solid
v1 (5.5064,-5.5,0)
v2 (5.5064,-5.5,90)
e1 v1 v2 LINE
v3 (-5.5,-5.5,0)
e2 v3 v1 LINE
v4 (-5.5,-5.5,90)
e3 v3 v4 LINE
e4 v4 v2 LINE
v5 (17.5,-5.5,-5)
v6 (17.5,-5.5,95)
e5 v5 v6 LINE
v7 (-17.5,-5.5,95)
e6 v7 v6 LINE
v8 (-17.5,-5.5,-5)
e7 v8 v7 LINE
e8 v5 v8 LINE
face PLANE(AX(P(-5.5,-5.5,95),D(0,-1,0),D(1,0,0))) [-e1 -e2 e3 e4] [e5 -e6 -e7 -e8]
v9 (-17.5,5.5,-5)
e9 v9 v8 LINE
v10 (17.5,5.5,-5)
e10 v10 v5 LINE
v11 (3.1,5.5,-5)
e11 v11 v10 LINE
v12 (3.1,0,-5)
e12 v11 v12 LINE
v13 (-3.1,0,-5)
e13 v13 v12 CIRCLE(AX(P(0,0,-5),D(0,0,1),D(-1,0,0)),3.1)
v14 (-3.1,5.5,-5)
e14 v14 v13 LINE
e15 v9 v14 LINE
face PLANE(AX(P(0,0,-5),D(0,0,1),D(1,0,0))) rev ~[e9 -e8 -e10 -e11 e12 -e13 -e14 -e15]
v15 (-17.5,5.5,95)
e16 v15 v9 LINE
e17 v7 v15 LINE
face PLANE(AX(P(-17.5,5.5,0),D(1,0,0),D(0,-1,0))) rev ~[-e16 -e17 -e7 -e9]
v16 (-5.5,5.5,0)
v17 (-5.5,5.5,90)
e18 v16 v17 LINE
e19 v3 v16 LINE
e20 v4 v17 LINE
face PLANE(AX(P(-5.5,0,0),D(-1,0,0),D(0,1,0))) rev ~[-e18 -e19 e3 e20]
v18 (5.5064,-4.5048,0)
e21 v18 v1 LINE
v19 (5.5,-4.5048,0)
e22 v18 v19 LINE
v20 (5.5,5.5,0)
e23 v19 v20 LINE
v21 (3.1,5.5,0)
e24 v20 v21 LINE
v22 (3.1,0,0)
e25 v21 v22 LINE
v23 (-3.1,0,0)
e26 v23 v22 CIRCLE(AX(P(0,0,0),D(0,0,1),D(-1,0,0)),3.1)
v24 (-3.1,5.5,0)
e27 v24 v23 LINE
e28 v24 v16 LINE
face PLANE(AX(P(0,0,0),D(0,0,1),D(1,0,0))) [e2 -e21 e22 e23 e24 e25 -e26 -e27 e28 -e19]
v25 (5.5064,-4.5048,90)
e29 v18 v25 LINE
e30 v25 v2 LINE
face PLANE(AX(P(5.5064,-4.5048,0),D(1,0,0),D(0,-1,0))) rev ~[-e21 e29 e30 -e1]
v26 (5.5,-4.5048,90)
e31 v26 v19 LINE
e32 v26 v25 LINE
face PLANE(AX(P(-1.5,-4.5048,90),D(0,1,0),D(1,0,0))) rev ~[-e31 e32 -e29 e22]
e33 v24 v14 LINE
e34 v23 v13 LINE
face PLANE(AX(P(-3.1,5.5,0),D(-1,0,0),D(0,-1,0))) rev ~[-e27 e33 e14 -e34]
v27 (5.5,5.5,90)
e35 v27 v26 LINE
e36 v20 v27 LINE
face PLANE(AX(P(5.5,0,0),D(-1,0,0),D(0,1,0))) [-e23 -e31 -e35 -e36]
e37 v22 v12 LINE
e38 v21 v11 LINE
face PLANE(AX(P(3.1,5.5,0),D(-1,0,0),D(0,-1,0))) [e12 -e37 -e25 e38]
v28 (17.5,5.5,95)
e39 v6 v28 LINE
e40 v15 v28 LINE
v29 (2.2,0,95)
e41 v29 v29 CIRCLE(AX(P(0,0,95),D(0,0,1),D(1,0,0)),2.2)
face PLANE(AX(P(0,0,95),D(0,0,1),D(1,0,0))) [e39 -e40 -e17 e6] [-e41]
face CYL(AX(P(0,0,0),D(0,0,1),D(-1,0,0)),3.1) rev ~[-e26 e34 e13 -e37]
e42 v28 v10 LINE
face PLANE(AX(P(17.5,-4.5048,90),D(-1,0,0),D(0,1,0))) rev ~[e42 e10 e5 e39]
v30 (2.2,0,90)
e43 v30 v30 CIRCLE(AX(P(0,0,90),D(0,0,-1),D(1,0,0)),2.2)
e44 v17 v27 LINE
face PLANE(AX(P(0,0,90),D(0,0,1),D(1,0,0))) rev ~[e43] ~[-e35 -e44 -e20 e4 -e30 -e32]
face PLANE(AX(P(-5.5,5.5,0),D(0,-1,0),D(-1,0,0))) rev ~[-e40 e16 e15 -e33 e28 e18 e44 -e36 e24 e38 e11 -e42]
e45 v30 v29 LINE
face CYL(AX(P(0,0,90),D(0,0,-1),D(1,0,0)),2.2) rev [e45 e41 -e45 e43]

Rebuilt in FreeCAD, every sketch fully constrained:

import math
import FreeCAD as App
import Part
import Sketcher

V = App.Vector


def add_polygon(sketch, points):
    """Adds a closed chain of lines whose ends are joined by coincident constraints."""
    first, n = sketch.GeometryCount, len(points)
    for a, b in zip(points, points[1:] + points[:1]):
        sketch.addGeometry(Part.LineSegment(App.Vector(*a, 0), App.Vector(*b, 0)), False)
    for i in range(n):
        sketch.addConstraint(Sketcher.Constraint("Coincident", first + i, 2, first + (i + 1) % n, 1))

doc = App.newDocument("Part")
body = doc.addObject("PartDesign::Body", "Body")
body.AllowCompound = True

sketch1 = doc.addObject("Sketcher::SketchObject", "Sketch")
body.addObject(sketch1)
sketch1.AttachmentSupport = (doc.XY_Plane, [""])
sketch1.MapMode = "FlatFace"
add_polygon(sketch1, [(-18, 0), (-6, 0), (-6, 6), (-18, 6)])
add_polygon(sketch1, [(6, 6), (6, 0), (18, 0), (18, 6)])
sketch1.addConstraint(Sketcher.Constraint("Horizontal", 0))
sketch1.addConstraint(Sketcher.Constraint("Vertical", 1))
sketch1.addConstraint(Sketcher.Constraint("Horizontal", 2))
sketch1.addConstraint(Sketcher.Constraint("Vertical", 3))
sketch1.addConstraint(Sketcher.Constraint("Vertical", 4))
sketch1.addConstraint(Sketcher.Constraint("Horizontal", 5))
sketch1.addConstraint(Sketcher.Constraint("Vertical", 6))
sketch1.addConstraint(Sketcher.Constraint("Horizontal", 7))
sketch1.addConstraint(Sketcher.Constraint("Symmetric", 0, 2, 4, 2, -1, 1))
sketch1.addConstraint(Sketcher.Constraint("Symmetric", 3, 2, 5, 2, -2))
sketch1.addConstraint(Sketcher.Constraint("Horizontal", 2, 2, 6, 2))
sketch1.addConstraint(Sketcher.Constraint("DistanceX", 0, 1, 0, 2, 12.0))
sketch1.addConstraint(Sketcher.Constraint("DistanceX", 0, 2, 4, 2, 11.0))
sketch1.addConstraint(Sketcher.Constraint("DistanceY", 1, 1, 1, 2, 5.5))
pad1 = doc.addObject("PartDesign::Pad", "Pad")
body.addObject(pad1)
pad1.Profile = sketch1
pad1.Length = 90

sketch2 = doc.addObject("Sketcher::SketchObject", "Sketch001")
body.addObject(sketch2)
sketch2.AttachmentSupport = (doc.XY_Plane, [""])
sketch2.MapMode = "FlatFace"
sketch2.addGeometry(Part.ArcOfCircle(Part.Circle(V(0, 0, 0), V(0, 0, 1), 3.1), math.radians(180), math.radians(360)), False)
sketch2.addGeometry(Part.LineSegment(V(-3.1, 0, 0), V(-3.1, 5.5, 0)), False)
sketch2.addGeometry(Part.LineSegment(V(-3.1, 5.5, 0), V(-17.5, 5.5, 0)), False)
sketch2.addGeometry(Part.LineSegment(V(-17.5, 5.5, 0), V(-17.5, 0, 0)), False)
sketch2.addGeometry(Part.LineSegment(V(-17.5, 0, 0), V(-5.5, 0, 0)), False)
sketch2.addGeometry(Part.ArcOfCircle(Part.Circle(V(0, 0, 0), V(0, 0, 1), 5.5), math.radians(180), math.radians(360)), False)
sketch2.addGeometry(Part.LineSegment(V(5.5, 0, 0), V(17.5, 0, 0)), False)
sketch2.addGeometry(Part.LineSegment(V(17.5, 0, 0), V(17.5, 5.5, 0)), False)
sketch2.addGeometry(Part.LineSegment(V(17.5, 5.5, 0), V(3.1, 5.5, 0)), False)
sketch2.addGeometry(Part.LineSegment(V(3.1, 5.5, 0), V(3.1, 0, 0)), False)
sketch2.addConstraint(Sketcher.Constraint("Tangent", 0, 1, 1, 1))
sketch2.addConstraint(Sketcher.Constraint("Coincident", 1, 2, 2, 1))
sketch2.addConstraint(Sketcher.Constraint("Coincident", 2, 2, 3, 1))
sketch2.addConstraint(Sketcher.Constraint("Coincident", 3, 2, 4, 1))
sketch2.addConstraint(Sketcher.Constraint("Coincident", 4, 2, 5, 1))
sketch2.addConstraint(Sketcher.Constraint("Coincident", 5, 2, 6, 1))
sketch2.addConstraint(Sketcher.Constraint("Coincident", 6, 2, 7, 1))
sketch2.addConstraint(Sketcher.Constraint("Coincident", 7, 2, 8, 1))
sketch2.addConstraint(Sketcher.Constraint("Coincident", 8, 2, 9, 1))
sketch2.addConstraint(Sketcher.Constraint("Tangent", 9, 2, 0, 2))
sketch2.addConstraint(Sketcher.Constraint("Vertical", 1))
sketch2.addConstraint(Sketcher.Constraint("Horizontal", 2))
sketch2.addConstraint(Sketcher.Constraint("Vertical", 3))
sketch2.addConstraint(Sketcher.Constraint("Horizontal", 4))
sketch2.addConstraint(Sketcher.Constraint("Horizontal", 6))
sketch2.addConstraint(Sketcher.Constraint("Vertical", 7))
sketch2.addConstraint(Sketcher.Constraint("Horizontal", 8))
sketch2.addConstraint(Sketcher.Constraint("Vertical", 9))
sketch2.addConstraint(Sketcher.Constraint("Coincident", 0, 3, -1, 1))
sketch2.addConstraint(Sketcher.Constraint("Coincident", 5, 3, -1, 1))
sketch2.addConstraint(Sketcher.Constraint("Symmetric", 3, 2, 6, 2, -1, 1))
sketch2.addConstraint(Sketcher.Constraint("PointOnObject", 3, 2, -1))
sketch2.addConstraint(Sketcher.Constraint("Horizontal", 2, 2, 7, 2))
sketch2.addConstraint(Sketcher.Constraint("Radius", 0, 3.1))
sketch2.addConstraint(Sketcher.Constraint("Radius", 5, 5.5))
sketch2.addConstraint(Sketcher.Constraint("DistanceX", 4, 1, 4, 2, 12.0))
sketch2.addConstraint(Sketcher.Constraint("DistanceY", 1, 1, 1, 2, 5.5))
pad2 = doc.addObject("PartDesign::Pad", "Pad001")
body.addObject(pad2)
pad2.Profile = sketch2
pad2.Length = 5
pad2.Reversed = True

sketch3 = doc.addObject("Sketcher::SketchObject", "Sketch002")
body.addObject(sketch3)
sketch3.AttachmentSupport = (doc.XY_Plane, [""])
sketch3.MapMode = "FlatFace"
sketch3.AttachmentOffset = App.Placement(V(0, 0, 90), App.Rotation())
add_polygon(sketch3, [(17.5, -4.5), (17.5, 5.5), (-17.5, 5.5), (-17.5, -4.5)])
sketch3.addGeometry(Part.Circle(V(0, 0, 0), V(0, 0, 1), 2.2), False)
sketch3.addConstraint(Sketcher.Constraint("Vertical", 0))
sketch3.addConstraint(Sketcher.Constraint("Horizontal", 1))
sketch3.addConstraint(Sketcher.Constraint("Vertical", 2))
sketch3.addConstraint(Sketcher.Constraint("Horizontal", 3))
sketch3.addConstraint(Sketcher.Constraint("Coincident", 4, 3, -1, 1))
sketch3.addConstraint(Sketcher.Constraint("Diameter", 4, 4.4))
sketch3.addConstraint(Sketcher.Constraint("DistanceX", 1, 2, 1, 1, 35.0))
sketch3.addConstraint(Sketcher.Constraint("DistanceX", -1, 1, 0, 2, 17.5))
sketch3.addConstraint(Sketcher.Constraint("DistanceY", -1, 1, 0, 2, 5.5))
sketch3.addConstraint(Sketcher.Constraint("DistanceY", 0, 1, 0, 2, 10.0048))
pad3 = doc.addObject("PartDesign::Pad", "Pad002")
body.addObject(pad3)
pad3.Profile = sketch3
pad3.Length = 5

sketch4 = doc.addObject("Sketcher::SketchObject", "Sketch003")
body.addObject(sketch4)
sketch4.AttachmentSupport = (doc.XY_Plane, [""])
sketch4.MapMode = "FlatFace"
sketch4.addGeometry(Part.ArcOfCircle(Part.Circle(V(0, 0, 0), V(0, 0, 1), 6), math.radians(180), math.radians(270)), False)
sketch4.addGeometry(Part.LineSegment(V(-6, 0, 0), V(-18, 0, 0)), False)
sketch4.addGeometry(Part.LineSegment(V(-18, 0, 0), V(-18, -6, 0)), False)
sketch4.addGeometry(Part.LineSegment(V(-18, -6, 0), V(0, -6, 0)), False)
sketch4.addGeometry(Part.LineSegment(V(18, 0, 0), V(6, 0, 0)), False)
sketch4.addGeometry(Part.ArcOfCircle(Part.Circle(V(0, 0, 0), V(0, 0, 1), 6), math.radians(-90), math.radians(0)), False)
sketch4.addGeometry(Part.LineSegment(V(0, -6, 0), V(18, -6, 0)), False)
sketch4.addGeometry(Part.LineSegment(V(18, -6, 0), V(18, 0, 0)), False)
sketch4.addConstraint(Sketcher.Constraint("Coincident", 0, 1, 1, 1))
sketch4.addConstraint(Sketcher.Constraint("Coincident", 1, 2, 2, 1))
sketch4.addConstraint(Sketcher.Constraint("Coincident", 2, 2, 3, 1))
sketch4.addConstraint(Sketcher.Constraint("Tangent", 3, 2, 0, 2))
sketch4.addConstraint(Sketcher.Constraint("Coincident", 4, 2, 5, 2))
sketch4.addConstraint(Sketcher.Constraint("Tangent", 5, 1, 6, 1))
sketch4.addConstraint(Sketcher.Constraint("Coincident", 6, 2, 7, 1))
sketch4.addConstraint(Sketcher.Constraint("Coincident", 7, 2, 4, 1))
sketch4.addConstraint(Sketcher.Constraint("Horizontal", 1))
sketch4.addConstraint(Sketcher.Constraint("Vertical", 2))
sketch4.addConstraint(Sketcher.Constraint("Horizontal", 3))
sketch4.addConstraint(Sketcher.Constraint("Horizontal", 4))
sketch4.addConstraint(Sketcher.Constraint("Horizontal", 6))
sketch4.addConstraint(Sketcher.Constraint("Vertical", 7))
sketch4.addConstraint(Sketcher.Constraint("Coincident", 0, 3, -1, 1))
sketch4.addConstraint(Sketcher.Constraint("Coincident", 5, 3, -1, 1))
sketch4.addConstraint(Sketcher.Constraint("Equal", 0, 5))
sketch4.addConstraint(Sketcher.Constraint("Symmetric", 1, 2, 7, 2, -1, 1))
sketch4.addConstraint(Sketcher.Constraint("PointOnObject", 0, 1, -1))
sketch4.addConstraint(Sketcher.Constraint("Radius", 0, 5.5))
sketch4.addConstraint(Sketcher.Constraint("DistanceX", 1, 2, 1, 1, 12.0))
pad4 = doc.addObject("PartDesign::Pad", "Pad003")
body.addObject(pad4)
pad4.Profile = sketch4
pad4.Length = 5
pad4.Reversed = True

sketch5 = doc.addObject("Sketcher::SketchObject", "Sketch004")
body.addObject(sketch5)
sketch5.AttachmentSupport = (doc.XY_Plane, [""])
sketch5.MapMode = "FlatFace"
sketch5.AttachmentOffset = App.Placement(V(0, 0, 90), App.Rotation())
add_polygon(sketch5, [(5.5, -4.5), (5.5, 0), (17.5, 0), (17.5, -4.5)])
add_polygon(sketch5, [(-5.5, 0), (-5.5, -4.5), (-17.5, -4.5), (-17.5, 0)])
sketch5.addConstraint(Sketcher.Constraint("Vertical", 0))
sketch5.addConstraint(Sketcher.Constraint("Horizontal", 1))
sketch5.addConstraint(Sketcher.Constraint("Vertical", 2))
sketch5.addConstraint(Sketcher.Constraint("Horizontal", 3))
sketch5.addConstraint(Sketcher.Constraint("Vertical", 4))
sketch5.addConstraint(Sketcher.Constraint("Horizontal", 5))
sketch5.addConstraint(Sketcher.Constraint("Vertical", 6))
sketch5.addConstraint(Sketcher.Constraint("Horizontal", 7))
sketch5.addConstraint(Sketcher.Constraint("Symmetric", 1, 2, 6, 2, -1, 1))
sketch5.addConstraint(Sketcher.Constraint("Symmetric", 3, 2, 4, 2, -2))
sketch5.addConstraint(Sketcher.Constraint("PointOnObject", 0, 2, -1))
sketch5.addConstraint(Sketcher.Constraint("DistanceX", 1, 1, 1, 2, 12.0))
sketch5.addConstraint(Sketcher.Constraint("DistanceX", 4, 2, 3, 2, 11.0))
sketch5.addConstraint(Sketcher.Constraint("DistanceY", 0, 1, 0, 2, 4.5048))
pad5 = doc.addObject("PartDesign::Pad", "Pad004")
body.addObject(pad5)
pad5.Profile = sketch5
pad5.Length = 90
pad5.Reversed = True

sketch6 = doc.addObject("Sketcher::SketchObject", "Sketch005")
body.addObject(sketch6)
sketch6.AttachmentSupport = (doc.XY_Plane, [""])
sketch6.MapMode = "FlatFace"
add_polygon(sketch6, [(-17.5, -4.5), (-17.5, -5.5), (-5.5, -5.5), (-5.5, -4.5)])
add_polygon(sketch6, [(5.5, -4.5), (5.5, -5.5), (17.5, -5.5), (17.5, -4.5)])
sketch6.addConstraint(Sketcher.Constraint("Vertical", 0))
sketch6.addConstraint(Sketcher.Constraint("Horizontal", 1))
sketch6.addConstraint(Sketcher.Constraint("Vertical", 2))
sketch6.addConstraint(Sketcher.Constraint("Horizontal", 3))
sketch6.addConstraint(Sketcher.Constraint("Vertical", 4))
sketch6.addConstraint(Sketcher.Constraint("Horizontal", 5))
sketch6.addConstraint(Sketcher.Constraint("Vertical", 6))
sketch6.addConstraint(Sketcher.Constraint("Horizontal", 7))
sketch6.addConstraint(Sketcher.Constraint("Symmetric", 0, 2, 5, 2, -2))
sketch6.addConstraint(Sketcher.Constraint("Horizontal", 3, 2, 6, 2))
sketch6.addConstraint(Sketcher.Constraint("DistanceX", 1, 1, 1, 2, 12.0))
sketch6.addConstraint(Sketcher.Constraint("DistanceX", 1, 2, 5, 2, 23.0))
sketch6.addConstraint(Sketcher.Constraint("DistanceY", 0, 2, -1, 1, 5.5))
sketch6.addConstraint(Sketcher.Constraint("DistanceX", 5, 1, 5, 2, 11.9936))
sketch6.addConstraint(Sketcher.Constraint("DistanceY", 0, 2, 0, 1, 0.9952))
pad6 = doc.addObject("PartDesign::Pad", "Pad005")
body.addObject(pad6)
pad6.Profile = sketch6
pad6.Length = 95

sketch7 = doc.addObject("Sketcher::SketchObject", "Sketch006")
body.addObject(sketch7)
sketch7.AttachmentSupport = (doc.XY_Plane, [""])
sketch7.MapMode = "FlatFace"
sketch7.AttachmentOffset = App.Placement(V(0, 0, 95), App.Rotation())
add_polygon(sketch7, [(5.5, -4.5), (-5.5, -4.5), (-5.5, -5.5), (5.5, -5.5)])
sketch7.addConstraint(Sketcher.Constraint("Horizontal", 0))
sketch7.addConstraint(Sketcher.Constraint("Vertical", 1))
sketch7.addConstraint(Sketcher.Constraint("Horizontal", 2))
sketch7.addConstraint(Sketcher.Constraint("Vertical", 3))
sketch7.addConstraint(Sketcher.Constraint("DistanceX", 0, 2, -1, 1, 5.5))
sketch7.addConstraint(Sketcher.Constraint("DistanceY", 1, 2, -1, 1, 5.5))
sketch7.addConstraint(Sketcher.Constraint("DistanceX", 0, 2, 0, 1, 11.016))
sketch7.addConstraint(Sketcher.Constraint("DistanceY", 1, 2, 1, 1, 0.9952))
pad7 = doc.addObject("PartDesign::Pad", "Pad006")
body.addObject(pad7)
pad7.Profile = sketch7
pad7.Length = 5
pad7.Reversed = True

doc.recompute()
